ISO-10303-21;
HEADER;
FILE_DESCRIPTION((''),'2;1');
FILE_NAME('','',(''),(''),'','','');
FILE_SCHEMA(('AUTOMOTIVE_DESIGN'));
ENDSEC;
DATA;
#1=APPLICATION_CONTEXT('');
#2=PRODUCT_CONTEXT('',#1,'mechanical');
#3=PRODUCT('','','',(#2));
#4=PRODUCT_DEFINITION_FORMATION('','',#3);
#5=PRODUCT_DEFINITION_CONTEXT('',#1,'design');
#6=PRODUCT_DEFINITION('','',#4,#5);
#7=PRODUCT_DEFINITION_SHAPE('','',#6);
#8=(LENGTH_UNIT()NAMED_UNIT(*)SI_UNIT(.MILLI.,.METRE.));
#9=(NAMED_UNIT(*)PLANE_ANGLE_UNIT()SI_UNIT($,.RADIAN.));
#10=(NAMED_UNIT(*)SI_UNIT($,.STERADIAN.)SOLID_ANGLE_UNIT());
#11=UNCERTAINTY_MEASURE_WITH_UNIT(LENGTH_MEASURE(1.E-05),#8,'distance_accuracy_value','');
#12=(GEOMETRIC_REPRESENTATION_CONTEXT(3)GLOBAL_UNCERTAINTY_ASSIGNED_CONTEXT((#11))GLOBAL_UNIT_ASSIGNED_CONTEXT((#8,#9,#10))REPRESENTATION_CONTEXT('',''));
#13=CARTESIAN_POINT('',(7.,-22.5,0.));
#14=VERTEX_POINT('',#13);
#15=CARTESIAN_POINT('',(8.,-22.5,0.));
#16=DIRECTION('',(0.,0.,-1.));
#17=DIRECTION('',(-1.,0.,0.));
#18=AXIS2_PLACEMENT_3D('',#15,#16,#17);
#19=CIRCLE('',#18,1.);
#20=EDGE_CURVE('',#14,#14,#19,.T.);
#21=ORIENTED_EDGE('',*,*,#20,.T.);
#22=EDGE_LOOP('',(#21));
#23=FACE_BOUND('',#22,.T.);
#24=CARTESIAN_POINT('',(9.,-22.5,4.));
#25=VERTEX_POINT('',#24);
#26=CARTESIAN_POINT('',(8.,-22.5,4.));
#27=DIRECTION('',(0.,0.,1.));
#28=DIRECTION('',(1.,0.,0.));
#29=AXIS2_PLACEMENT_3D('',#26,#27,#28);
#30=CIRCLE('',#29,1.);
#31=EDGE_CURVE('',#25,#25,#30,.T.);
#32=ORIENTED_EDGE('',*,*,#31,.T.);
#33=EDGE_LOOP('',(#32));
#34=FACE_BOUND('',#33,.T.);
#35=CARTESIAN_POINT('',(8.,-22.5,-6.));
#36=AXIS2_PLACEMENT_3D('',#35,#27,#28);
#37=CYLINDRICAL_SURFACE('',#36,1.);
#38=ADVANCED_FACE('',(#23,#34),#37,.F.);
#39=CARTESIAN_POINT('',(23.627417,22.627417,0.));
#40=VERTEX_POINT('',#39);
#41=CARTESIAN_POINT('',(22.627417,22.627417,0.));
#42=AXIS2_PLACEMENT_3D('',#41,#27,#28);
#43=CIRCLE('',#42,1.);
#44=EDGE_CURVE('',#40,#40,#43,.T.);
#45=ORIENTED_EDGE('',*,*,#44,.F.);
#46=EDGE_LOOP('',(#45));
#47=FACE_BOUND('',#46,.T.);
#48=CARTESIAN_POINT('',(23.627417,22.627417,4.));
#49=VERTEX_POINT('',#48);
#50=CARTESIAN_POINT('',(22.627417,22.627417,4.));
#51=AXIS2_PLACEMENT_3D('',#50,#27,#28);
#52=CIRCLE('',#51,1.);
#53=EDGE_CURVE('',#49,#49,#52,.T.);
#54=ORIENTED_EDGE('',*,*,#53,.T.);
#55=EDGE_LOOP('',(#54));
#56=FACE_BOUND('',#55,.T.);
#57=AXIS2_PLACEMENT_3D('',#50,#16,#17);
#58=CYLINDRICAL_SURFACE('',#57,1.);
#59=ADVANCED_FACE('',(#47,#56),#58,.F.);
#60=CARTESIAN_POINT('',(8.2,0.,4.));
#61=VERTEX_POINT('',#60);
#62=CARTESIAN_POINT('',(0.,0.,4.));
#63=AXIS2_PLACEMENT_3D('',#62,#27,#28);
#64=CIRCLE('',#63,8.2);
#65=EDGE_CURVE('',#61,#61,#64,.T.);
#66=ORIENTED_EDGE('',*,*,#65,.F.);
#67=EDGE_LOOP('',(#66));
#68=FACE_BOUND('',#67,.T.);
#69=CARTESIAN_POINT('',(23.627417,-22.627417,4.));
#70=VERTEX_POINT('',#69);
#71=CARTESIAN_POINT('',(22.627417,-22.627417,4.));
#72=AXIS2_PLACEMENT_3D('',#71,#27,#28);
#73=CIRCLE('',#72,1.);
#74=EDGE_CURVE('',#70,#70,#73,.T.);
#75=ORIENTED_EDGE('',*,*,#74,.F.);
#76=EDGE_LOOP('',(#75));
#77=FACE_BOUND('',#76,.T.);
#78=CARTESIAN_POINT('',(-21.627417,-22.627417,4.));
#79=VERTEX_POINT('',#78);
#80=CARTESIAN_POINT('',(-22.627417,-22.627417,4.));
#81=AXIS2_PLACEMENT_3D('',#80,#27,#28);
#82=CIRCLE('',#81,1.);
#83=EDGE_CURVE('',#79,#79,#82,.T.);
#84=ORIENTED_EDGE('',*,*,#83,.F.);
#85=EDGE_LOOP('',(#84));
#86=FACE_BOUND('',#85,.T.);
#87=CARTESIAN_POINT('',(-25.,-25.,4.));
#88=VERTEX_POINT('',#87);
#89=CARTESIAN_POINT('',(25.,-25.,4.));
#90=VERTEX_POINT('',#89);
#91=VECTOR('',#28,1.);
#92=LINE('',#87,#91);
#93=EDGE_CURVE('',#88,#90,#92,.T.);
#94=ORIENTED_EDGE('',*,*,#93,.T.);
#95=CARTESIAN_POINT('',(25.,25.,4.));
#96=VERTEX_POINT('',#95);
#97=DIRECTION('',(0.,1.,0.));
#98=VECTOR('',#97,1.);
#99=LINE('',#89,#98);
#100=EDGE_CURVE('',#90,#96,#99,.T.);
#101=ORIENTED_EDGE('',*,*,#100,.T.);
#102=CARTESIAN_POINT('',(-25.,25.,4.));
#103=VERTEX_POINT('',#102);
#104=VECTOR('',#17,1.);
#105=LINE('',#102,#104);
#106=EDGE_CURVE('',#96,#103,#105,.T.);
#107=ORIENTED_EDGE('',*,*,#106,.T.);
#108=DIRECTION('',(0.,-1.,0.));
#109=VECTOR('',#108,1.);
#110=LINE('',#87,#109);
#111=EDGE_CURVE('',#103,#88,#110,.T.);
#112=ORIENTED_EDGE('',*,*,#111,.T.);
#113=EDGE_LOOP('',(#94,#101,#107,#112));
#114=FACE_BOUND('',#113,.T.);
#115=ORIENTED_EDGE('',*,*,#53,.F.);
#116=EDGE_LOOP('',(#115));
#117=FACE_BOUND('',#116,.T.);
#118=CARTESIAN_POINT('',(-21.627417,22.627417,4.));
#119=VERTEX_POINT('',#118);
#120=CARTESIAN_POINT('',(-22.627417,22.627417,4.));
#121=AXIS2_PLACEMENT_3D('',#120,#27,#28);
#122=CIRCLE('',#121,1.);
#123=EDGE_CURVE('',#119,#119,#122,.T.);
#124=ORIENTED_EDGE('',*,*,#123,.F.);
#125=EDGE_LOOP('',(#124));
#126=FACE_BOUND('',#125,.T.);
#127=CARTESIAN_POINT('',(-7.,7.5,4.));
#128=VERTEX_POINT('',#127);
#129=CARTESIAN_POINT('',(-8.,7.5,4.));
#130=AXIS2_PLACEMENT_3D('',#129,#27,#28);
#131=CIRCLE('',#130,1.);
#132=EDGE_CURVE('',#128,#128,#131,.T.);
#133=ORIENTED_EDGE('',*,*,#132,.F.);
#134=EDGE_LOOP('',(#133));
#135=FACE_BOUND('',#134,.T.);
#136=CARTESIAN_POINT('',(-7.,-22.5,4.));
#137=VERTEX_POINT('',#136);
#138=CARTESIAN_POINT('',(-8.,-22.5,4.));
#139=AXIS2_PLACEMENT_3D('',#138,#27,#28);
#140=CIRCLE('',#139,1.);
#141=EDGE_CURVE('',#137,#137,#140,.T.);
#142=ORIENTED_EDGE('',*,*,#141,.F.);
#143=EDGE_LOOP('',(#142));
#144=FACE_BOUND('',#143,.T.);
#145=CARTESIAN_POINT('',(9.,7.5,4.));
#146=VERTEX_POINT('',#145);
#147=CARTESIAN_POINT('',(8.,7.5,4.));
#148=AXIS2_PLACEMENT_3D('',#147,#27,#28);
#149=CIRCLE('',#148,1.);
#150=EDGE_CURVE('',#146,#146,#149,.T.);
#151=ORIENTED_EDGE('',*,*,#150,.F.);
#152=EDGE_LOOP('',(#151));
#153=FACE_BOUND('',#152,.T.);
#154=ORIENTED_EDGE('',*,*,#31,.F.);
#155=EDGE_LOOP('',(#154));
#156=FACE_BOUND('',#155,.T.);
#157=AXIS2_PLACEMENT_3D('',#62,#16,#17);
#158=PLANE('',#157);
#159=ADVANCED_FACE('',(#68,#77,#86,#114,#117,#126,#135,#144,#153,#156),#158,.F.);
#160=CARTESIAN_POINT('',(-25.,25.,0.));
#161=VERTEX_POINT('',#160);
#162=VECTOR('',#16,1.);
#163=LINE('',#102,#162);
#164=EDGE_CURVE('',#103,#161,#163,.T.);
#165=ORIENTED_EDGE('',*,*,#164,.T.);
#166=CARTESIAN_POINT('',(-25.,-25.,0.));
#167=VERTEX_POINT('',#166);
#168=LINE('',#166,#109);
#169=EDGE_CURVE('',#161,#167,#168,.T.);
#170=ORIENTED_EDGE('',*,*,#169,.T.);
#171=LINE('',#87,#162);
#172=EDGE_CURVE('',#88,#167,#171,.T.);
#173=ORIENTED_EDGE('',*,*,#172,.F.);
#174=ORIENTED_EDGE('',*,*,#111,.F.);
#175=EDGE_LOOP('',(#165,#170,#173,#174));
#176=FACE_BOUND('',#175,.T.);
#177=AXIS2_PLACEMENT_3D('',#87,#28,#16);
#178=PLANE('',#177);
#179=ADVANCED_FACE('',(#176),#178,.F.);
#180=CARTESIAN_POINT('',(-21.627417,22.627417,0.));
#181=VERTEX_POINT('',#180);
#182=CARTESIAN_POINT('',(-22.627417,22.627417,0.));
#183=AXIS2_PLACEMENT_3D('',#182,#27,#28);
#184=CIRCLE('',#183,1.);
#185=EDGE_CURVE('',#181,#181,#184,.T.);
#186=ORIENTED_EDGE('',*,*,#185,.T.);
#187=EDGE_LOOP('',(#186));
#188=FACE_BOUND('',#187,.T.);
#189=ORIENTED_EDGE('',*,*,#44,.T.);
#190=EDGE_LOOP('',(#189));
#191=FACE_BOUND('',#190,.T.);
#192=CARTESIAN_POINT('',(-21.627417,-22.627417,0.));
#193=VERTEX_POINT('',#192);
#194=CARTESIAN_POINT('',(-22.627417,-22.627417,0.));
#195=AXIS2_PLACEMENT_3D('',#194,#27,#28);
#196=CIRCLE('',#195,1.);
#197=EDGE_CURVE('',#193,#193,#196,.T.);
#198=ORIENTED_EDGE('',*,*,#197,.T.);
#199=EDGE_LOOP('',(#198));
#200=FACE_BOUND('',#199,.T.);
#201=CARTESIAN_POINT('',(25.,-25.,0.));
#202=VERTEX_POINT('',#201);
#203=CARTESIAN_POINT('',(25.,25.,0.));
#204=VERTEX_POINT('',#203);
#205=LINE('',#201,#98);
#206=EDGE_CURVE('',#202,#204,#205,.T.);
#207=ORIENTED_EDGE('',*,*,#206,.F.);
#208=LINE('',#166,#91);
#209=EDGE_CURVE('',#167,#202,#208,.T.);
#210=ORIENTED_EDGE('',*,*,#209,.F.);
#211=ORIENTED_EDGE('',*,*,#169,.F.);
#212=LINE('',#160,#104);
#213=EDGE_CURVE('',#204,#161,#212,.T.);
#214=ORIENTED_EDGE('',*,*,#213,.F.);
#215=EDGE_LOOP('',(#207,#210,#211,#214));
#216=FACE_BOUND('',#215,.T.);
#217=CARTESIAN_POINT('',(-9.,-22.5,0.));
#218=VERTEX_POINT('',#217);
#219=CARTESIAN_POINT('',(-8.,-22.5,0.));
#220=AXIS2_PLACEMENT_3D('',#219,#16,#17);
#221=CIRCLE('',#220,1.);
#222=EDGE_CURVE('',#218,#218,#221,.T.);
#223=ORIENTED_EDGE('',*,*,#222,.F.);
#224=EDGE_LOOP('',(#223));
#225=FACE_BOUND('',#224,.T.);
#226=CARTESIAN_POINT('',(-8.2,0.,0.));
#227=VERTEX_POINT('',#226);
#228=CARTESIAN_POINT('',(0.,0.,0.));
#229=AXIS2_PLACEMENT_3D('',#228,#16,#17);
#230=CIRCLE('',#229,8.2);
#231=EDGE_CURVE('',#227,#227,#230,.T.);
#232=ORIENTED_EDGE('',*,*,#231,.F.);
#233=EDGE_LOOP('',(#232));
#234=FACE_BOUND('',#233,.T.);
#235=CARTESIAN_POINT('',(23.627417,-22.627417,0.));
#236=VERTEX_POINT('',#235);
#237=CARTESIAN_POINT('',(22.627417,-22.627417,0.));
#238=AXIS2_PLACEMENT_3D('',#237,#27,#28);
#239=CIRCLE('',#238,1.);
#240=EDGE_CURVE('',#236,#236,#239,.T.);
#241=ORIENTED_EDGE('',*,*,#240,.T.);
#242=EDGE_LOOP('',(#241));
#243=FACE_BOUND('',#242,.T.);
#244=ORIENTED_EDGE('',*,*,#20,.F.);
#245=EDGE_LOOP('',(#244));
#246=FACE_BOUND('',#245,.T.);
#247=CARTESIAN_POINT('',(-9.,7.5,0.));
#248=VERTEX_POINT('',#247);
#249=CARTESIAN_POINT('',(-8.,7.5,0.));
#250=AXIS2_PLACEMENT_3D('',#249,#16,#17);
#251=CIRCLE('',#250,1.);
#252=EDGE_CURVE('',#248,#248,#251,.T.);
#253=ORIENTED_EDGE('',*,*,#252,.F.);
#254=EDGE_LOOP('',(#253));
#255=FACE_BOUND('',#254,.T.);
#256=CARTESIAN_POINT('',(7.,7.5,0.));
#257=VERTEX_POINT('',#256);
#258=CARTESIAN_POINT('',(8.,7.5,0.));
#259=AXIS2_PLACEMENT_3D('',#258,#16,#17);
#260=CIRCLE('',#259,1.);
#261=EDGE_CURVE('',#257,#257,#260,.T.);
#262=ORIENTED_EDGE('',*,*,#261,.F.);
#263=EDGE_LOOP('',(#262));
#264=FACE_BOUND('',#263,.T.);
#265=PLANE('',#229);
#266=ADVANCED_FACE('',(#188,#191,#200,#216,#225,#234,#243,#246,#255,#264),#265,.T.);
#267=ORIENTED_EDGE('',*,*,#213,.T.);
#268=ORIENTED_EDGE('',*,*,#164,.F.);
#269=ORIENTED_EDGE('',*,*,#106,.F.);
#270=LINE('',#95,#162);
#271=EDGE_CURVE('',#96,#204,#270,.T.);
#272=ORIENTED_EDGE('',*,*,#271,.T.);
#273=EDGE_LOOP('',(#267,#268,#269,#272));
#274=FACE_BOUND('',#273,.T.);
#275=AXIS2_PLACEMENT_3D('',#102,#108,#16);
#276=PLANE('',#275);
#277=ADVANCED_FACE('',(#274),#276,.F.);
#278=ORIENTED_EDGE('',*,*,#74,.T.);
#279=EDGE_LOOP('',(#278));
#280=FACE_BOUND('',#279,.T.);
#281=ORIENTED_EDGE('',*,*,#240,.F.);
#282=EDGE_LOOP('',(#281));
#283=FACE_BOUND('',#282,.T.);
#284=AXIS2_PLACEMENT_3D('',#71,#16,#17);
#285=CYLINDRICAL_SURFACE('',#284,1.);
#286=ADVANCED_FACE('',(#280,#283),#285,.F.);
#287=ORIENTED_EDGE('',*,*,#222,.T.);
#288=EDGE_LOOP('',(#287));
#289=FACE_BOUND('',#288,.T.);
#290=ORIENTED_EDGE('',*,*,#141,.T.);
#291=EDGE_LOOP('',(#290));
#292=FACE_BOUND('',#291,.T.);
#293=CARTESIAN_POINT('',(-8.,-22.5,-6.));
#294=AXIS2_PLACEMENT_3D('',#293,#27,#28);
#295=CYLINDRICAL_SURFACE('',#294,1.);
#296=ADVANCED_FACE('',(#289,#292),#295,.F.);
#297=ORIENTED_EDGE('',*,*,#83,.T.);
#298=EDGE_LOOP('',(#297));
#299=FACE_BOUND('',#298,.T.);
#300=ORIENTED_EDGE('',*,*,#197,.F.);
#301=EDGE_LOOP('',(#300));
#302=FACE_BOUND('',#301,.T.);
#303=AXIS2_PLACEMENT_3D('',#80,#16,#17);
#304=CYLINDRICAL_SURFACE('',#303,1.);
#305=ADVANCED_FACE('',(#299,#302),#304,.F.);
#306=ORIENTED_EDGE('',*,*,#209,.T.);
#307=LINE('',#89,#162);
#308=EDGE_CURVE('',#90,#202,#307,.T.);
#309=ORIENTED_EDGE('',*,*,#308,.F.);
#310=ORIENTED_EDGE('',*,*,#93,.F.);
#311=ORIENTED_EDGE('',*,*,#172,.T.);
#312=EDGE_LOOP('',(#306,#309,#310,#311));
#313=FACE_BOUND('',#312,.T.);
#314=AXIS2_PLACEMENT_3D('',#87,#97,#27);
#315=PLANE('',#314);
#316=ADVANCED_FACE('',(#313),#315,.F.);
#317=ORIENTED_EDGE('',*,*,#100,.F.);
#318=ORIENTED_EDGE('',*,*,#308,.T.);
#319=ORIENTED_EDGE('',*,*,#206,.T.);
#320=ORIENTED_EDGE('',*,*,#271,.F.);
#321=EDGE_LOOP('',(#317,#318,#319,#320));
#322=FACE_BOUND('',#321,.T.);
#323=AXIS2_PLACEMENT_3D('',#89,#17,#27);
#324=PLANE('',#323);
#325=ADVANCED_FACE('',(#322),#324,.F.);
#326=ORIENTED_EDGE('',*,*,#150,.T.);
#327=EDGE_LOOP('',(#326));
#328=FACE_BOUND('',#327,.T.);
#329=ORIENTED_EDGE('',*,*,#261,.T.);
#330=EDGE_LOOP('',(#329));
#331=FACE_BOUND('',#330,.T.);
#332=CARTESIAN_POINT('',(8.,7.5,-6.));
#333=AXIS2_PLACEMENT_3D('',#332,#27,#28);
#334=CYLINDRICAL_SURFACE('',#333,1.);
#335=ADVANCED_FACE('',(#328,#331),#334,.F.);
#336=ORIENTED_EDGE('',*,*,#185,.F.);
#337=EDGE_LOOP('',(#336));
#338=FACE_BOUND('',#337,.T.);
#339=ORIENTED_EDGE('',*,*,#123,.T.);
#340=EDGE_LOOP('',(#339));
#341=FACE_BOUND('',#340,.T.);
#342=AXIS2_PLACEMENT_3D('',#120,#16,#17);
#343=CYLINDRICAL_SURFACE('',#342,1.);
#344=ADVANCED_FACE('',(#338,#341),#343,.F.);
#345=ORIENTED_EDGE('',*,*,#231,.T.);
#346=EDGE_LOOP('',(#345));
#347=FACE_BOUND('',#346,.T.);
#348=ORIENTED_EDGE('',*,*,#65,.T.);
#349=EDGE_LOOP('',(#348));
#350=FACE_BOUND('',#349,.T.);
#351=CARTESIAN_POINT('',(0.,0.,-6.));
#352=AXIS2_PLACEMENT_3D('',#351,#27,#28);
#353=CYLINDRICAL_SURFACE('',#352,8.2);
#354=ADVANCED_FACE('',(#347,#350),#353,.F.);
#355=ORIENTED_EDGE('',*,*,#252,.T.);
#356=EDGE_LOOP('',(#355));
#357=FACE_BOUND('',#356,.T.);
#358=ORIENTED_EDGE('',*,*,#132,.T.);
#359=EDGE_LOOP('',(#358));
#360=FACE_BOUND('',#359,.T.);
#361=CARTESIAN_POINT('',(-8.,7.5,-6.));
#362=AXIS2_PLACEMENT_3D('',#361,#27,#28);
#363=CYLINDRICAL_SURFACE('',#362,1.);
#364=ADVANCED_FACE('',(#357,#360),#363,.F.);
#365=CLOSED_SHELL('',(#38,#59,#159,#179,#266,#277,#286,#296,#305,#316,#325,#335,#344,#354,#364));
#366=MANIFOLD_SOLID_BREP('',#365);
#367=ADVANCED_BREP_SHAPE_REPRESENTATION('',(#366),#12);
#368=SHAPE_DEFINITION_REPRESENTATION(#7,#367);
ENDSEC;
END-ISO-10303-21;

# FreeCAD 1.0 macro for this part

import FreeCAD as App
import Part
import Sketcher


def add_polygon(sketch, points):
    """Adds a closed chain of lines whose ends are joined by coincident constraints."""
    first, n = sketch.GeometryCount, len(points)
    for a, b in zip(points, points[1:] + points[:1]):
        sketch.addGeometry(Part.LineSegment(App.Vector(*a, 0), App.Vector(*b, 0)), False)
    for i in range(n):
        sketch.addConstraint(Sketcher.Constraint("Coincident", first + i, 2, first + (i + 1) % n, 1))

doc = App.newDocument("Part")
body = doc.addObject("PartDesign::Body", "Body")

sketch1 = body.newObject("Sketcher::SketchObject", "Sketch")
sketch1.AttachmentSupport = (doc.getObject("XY_Plane"), [""])
sketch1.MapMode = "FlatFace"
add_polygon(sketch1, [(-25, 25), (-25, -25), (25, -25), (25, 25)])
sketch1.addGeometry(Part.Circle(App.Vector(-22.6, -22.6, 0), App.Vector(0, 0, 1), 1), False)
sketch1.addGeometry(Part.Circle(App.Vector(22.6, -22.6, 0), App.Vector(0, 0, 1), 1), False)
sketch1.addGeometry(Part.Circle(App.Vector(-22.6, 22.6, 0), App.Vector(0, 0, 1), 1), False)
sketch1.addGeometry(Part.Circle(App.Vector(22.6, 22.6, 0), App.Vector(0, 0, 1), 1), False)
sketch1.addConstraint([
    Sketcher.Constraint("Vertical", 0),
    Sketcher.Constraint("Horizontal", 1),
    Sketcher.Constraint("Vertical", 2),
    Sketcher.Constraint("Horizontal", 3),
    Sketcher.Constraint("Equal", 4, 5),
    Sketcher.Constraint("Equal", 5, 6),
    Sketcher.Constraint("Equal", 6, 7),
    Sketcher.Constraint("Symmetric", 5, 3, 6, 3, -1, 1),
    Sketcher.Constraint("Symmetric", 4, 3, 7, 3, -1, 1),
    Sketcher.Constraint("Symmetric", 0, 2, 2, 2, -1, 1),
    Sketcher.Constraint("Symmetric", 4, 3, 5, 3, -2),
    Sketcher.Constraint("Equal", 3, 0),
    Sketcher.Constraint("Diameter", 4, 2.0),
    Sketcher.Constraint("DistanceX", 1, 1, 1, 2, 50.0),
    Sketcher.Constraint("DistanceX", 4, 3, -1, 1, 22.627417),
    Sketcher.Constraint("DistanceY", 4, 3, -1, 1, 22.627417),
])
pad1 = body.newObject("PartDesign::Pad", "Pad")
pad1.Profile = sketch1
pad1.Length = 4

sketch2 = body.newObject("Sketcher::SketchObject", "Sketch001")
sketch2.AttachmentSupport = (doc.getObject("XY_Plane"), [""])
sketch2.MapMode = "FlatFace"
sketch2.AttachmentOffset = App.Placement(App.Vector(0, 0, 4), App.Rotation())
sketch2.addGeometry([
    Part.Circle(App.Vector(0, 0, 0), App.Vector(0, 0, 1), 8.2),
    Part.Circle(App.Vector(-8, 7.5, 0), App.Vector(0, 0, 1), 1),
    Part.Circle(App.Vector(8, 7.5, 0), App.Vector(0, 0, 1), 1),
    Part.Circle(App.Vector(-8, -22.5, 0), App.Vector(0, 0, 1), 1),
    Part.Circle(App.Vector(8, -22.5, 0), App.Vector(0, 0, 1), 1),
], False)
sketch2.addConstraint([
    Sketcher.Constraint("Coincident", 0, 3, -1, 1),
    Sketcher.Constraint("Equal", 1, 2),
    Sketcher.Constraint("Equal", 2, 3),
    Sketcher.Constraint("Equal", 3, 4),
    Sketcher.Constraint("Symmetric", 1, 3, 2, 3, -2),
    Sketcher.Constraint("Symmetric", 3, 3, 4, 3, -2),
    Sketcher.Constraint("Vertical", 1, 3, 3, 3),
    Sketcher.Constraint("Diameter", 1, 2.0),
    Sketcher.Constraint("Diameter", 0, 16.4),
    Sketcher.Constraint("DistanceX", 1, 3, -1, 1, 8.0),
    Sketcher.Constraint("DistanceY", 3, 3, 1, 3, 30.0),
    Sketcher.Constraint("DistanceY", -1, 1, 1, 3, 7.5),
])
pocket1 = body.newObject("PartDesign::Pocket", "Pocket")
pocket1.Profile = sketch2
pocket1.Length = 10

doc.recompute()
